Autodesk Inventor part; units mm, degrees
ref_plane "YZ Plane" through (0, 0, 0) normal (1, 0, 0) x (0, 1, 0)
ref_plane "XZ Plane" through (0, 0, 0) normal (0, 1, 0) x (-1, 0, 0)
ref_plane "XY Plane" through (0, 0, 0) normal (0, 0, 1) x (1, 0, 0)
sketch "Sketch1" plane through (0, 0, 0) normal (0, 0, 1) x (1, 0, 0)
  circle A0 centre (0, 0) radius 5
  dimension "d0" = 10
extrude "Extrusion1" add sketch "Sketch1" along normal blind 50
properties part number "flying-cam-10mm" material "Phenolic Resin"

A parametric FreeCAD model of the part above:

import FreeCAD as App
import Part
import Sketcher

doc = App.newDocument("Part")
body = doc.addObject("PartDesign::Body", "Body")

sketch1 = body.newObject("Sketcher::SketchObject", "Sketch")
sketch1.AttachmentSupport = (doc.getObject("XY_Plane"), [""])
sketch1.MapMode = "FlatFace"
sketch1.addGeometry(Part.Circle(App.Vector(0, 0, 0), App.Vector(0, 0, 1), 5), False)
sketch1.addConstraint(Sketcher.Constraint("Coincident", 0, 3, -1, 1))
sketch1.addConstraint(Sketcher.Constraint("Diameter", 0, 10.0))
pad1 = body.newObject("PartDesign::Pad", "Pad")
pad1.Profile = sketch1
pad1.Length = 50

doc.recompute()
